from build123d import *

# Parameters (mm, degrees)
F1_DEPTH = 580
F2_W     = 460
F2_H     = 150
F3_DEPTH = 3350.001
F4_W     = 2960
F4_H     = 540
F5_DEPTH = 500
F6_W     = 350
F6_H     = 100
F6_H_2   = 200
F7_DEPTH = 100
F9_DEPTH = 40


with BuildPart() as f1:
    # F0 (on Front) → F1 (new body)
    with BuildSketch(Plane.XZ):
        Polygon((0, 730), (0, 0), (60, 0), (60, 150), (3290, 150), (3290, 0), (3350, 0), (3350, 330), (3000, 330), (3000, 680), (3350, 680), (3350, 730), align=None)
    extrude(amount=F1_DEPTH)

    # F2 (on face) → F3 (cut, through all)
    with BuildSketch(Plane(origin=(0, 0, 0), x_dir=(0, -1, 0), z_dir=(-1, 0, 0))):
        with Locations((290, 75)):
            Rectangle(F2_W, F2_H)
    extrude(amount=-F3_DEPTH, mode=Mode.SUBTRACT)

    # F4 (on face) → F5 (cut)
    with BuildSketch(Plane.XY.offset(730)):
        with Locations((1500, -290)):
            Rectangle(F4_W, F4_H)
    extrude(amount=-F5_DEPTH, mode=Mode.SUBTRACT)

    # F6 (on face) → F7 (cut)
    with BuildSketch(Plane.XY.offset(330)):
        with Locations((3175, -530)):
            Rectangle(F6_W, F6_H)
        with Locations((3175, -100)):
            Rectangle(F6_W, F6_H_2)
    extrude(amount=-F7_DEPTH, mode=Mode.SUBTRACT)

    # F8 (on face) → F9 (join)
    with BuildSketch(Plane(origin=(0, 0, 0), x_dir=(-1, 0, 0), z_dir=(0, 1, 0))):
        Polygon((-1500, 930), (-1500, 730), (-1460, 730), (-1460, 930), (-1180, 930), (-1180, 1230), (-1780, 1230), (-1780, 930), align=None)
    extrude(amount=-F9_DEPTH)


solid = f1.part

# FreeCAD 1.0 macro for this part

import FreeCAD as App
import Part
import Sketcher
Q = App.Units.Quantity


def add_polygon(sketch, points):
    """Adds a closed chain of lines whose ends are joined by coincident constraints."""
    first, n = sketch.GeometryCount, len(points)
    for a, b in zip(points, points[1:] + points[:1]):
        sketch.addGeometry(Part.LineSegment(App.Vector(*a, 0), App.Vector(*b, 0)), False)
    for i in range(n):
        sketch.addConstraint(Sketcher.Constraint("Coincident", first + i, 2, first + (i + 1) % n, 1))

doc = App.newDocument("Part")
body = doc.addObject("PartDesign::Body", "Body")

# Sketch on XZ plane
sketch1 = body.newObject("Sketcher::SketchObject", "Sketch")
sketch1.AttachmentSupport = (doc.getObject("XZ_Plane"), [""])
sketch1.MapMode = "FlatFace"
add_polygon(sketch1, [(0, 730), (0, 0), (60, 0), (60, 150), (3290, 150), (3290, 0), (3350, 0), (3350, 330), (3000, 330), (3000, 680), (3350, 680), (3350, 730)])  # lines 0-11
sketch1.addConstraint([
    Sketcher.Constraint("Vertical", 0),
    Sketcher.Constraint("Horizontal", 1),
    Sketcher.Constraint("Vertical", 2),
    Sketcher.Constraint("Horizontal", 3),
    Sketcher.Constraint("Vertical", 4),
    Sketcher.Constraint("Horizontal", 5),
    Sketcher.Constraint("Vertical", 6),
    Sketcher.Constraint("Horizontal", 7),
    Sketcher.Constraint("Vertical", 8),
    Sketcher.Constraint("Horizontal", 9),
    Sketcher.Constraint("Vertical", 10),
    Sketcher.Constraint("Horizontal", 11),
    Sketcher.Constraint("Coincident", 0, 2, -1, 1),
    Sketcher.Constraint("PointOnObject", 4, 2, -1),
    Sketcher.Constraint("Vertical", 6, 2, 9, 2),
    Sketcher.Constraint("Equal", 1, 5),
    Sketcher.Constraint("Equal", 9, 8),
    Sketcher.Constraint("DistanceX", 1, 1, 1, 2, Q("60 mm")),
    Sketcher.Constraint("DistanceX", 3, 1, 3, 2, Q("3230 mm")),
    Sketcher.Constraint("DistanceX", 7, 2, 7, 1, Q("350 mm")),
    Sketcher.Constraint("DistanceY", 0, 2, 0, 1, Q("730 mm")),
    Sketcher.Constraint("DistanceY", 2, 1, 2, 2, Q("150 mm")),
    Sketcher.Constraint("DistanceY", 6, 1, 6, 2, Q("330 mm")),
])
pad1 = body.newObject("PartDesign::Pad", "Pad")
pad1.Profile = sketch1
pad1.Length = 580

# Sketch on YZ plane
sketch2 = body.newObject("Sketcher::SketchObject", "Sketch001")
sketch2.AttachmentSupport = (doc.getObject("YZ_Plane"), [""])
sketch2.MapMode = "FlatFace"
add_polygon(sketch2, [(-60, 150), (-60, 0), (-520, 0), (-520, 150)])  # lines 0-3
sketch2.addConstraint([
    Sketcher.Constraint("Vertical", 0),
    Sketcher.Constraint("Horizontal", 1),
    Sketcher.Constraint("Vertical", 2),
    Sketcher.Constraint("Horizontal", 3),
    Sketcher.Constraint("PointOnObject", 0, 2, -1),
    Sketcher.Constraint("DistanceX", 1, 2, 1, 1, Q("460 mm")),
    Sketcher.Constraint("DistanceY", 0, 2, 0, 1, Q("150 mm")),
    Sketcher.Constraint("DistanceX", 0, 2, -1, 1, Q("60 mm")),
])
pocket1 = body.newObject("PartDesign::Pocket", "Pocket")
pocket1.Profile = sketch2
pocket1.Type = "ThroughAll"
pocket1.Reversed = True

# Sketch on XY plane
sketch3 = body.newObject("Sketcher::SketchObject", "Sketch002")
sketch3.AttachmentSupport = (doc.getObject("XY_Plane"), [""])
sketch3.MapMode = "FlatFace"
sketch3.AttachmentOffset = App.Placement(App.Vector(0, 0, 730), App.Rotation())
add_polygon(sketch3, [(20, -20), (20, -560), (2980, -560), (2980, -20)])  # lines 0-3
sketch3.addConstraint([
    Sketcher.Constraint("Vertical", 0),
    Sketcher.Constraint("Horizontal", 1),
    Sketcher.Constraint("Vertical", 2),
    Sketcher.Constraint("Horizontal", 3),
    Sketcher.Constraint("DistanceX", 1, 1, 1, 2, Q("2960 mm")),
    Sketcher.Constraint("DistanceY", 0, 2, 0, 1, Q("540 mm")),
    Sketcher.Constraint("DistanceX", -1, 1, 0, 2, Q("20 mm")),
    Sketcher.Constraint("DistanceY", 0, 2, -1, 1, Q("560 mm")),
])
pocket2 = body.newObject("PartDesign::Pocket", "Pocket001")
pocket2.Profile = sketch3
pocket2.Length = 500

# Sketch on XY plane
sketch4 = body.newObject("Sketcher::SketchObject", "Sketch003")
sketch4.AttachmentSupport = (doc.getObject("XY_Plane"), [""])
sketch4.MapMode = "FlatFace"
sketch4.AttachmentOffset = App.Placement(App.Vector(0, 0, 330), App.Rotation())
add_polygon(sketch4, [(3000, -480), (3000, -580), (3350, -580), (3350, -480)])  # lines 0-3
add_polygon(sketch4, [(3000, 0), (3000, -200), (3350, -200), (3350, 0)])  # lines 4-7
sketch4.addConstraint([
    Sketcher.Constraint("Vertical", 0),
    Sketcher.Constraint("Horizontal", 1),
    Sketcher.Constraint("Vertical", 2),
    Sketcher.Constraint("Horizontal", 3),
    Sketcher.Constraint("Vertical", 4),
    Sketcher.Constraint("Horizontal", 5),
    Sketcher.Constraint("Vertical", 6),
    Sketcher.Constraint("Horizontal", 7),
    Sketcher.Constraint("PointOnObject", 6, 2, -1),
    Sketcher.Constraint("Vertical", 3, 2, 4, 2),
    Sketcher.Constraint("Vertical", 2, 2, 5, 2),
    Sketcher.Constraint("DistanceX", 1, 1, 1, 2, Q("350 mm")),
    Sketcher.Constraint("DistanceY", 0, 2, 0, 1, Q("100 mm")),
    Sketcher.Constraint("DistanceY", 4, 2, 4, 1, Q("200 mm")),
    Sketcher.Constraint("DistanceX", -1, 1, 0, 2, Q("3000 mm")),
    Sketcher.Constraint("DistanceY", 0, 2, -1, 1, Q("580 mm")),
])
pocket3 = body.newObject("PartDesign::Pocket", "Pocket002")
pocket3.Profile = sketch4
pocket3.Length = 100

# Sketch on XZ plane
sketch5 = body.newObject("Sketcher::SketchObject", "Sketch004")
sketch5.AttachmentSupport = (doc.getObject("XZ_Plane"), [""])
sketch5.MapMode = "FlatFace"
add_polygon(sketch5, [(1500, 930), (1500, 730), (1460, 730), (1460, 930), (1180, 930), (1180, 1230), (1780, 1230), (1780, 930)])  # lines 0-7
sketch5.addConstraint([
    Sketcher.Constraint("Vertical", 0),
    Sketcher.Constraint("Horizontal", 1),
    Sketcher.Constraint("Vertical", 2),
    Sketcher.Constraint("Horizontal", 3),
    Sketcher.Constraint("Vertical", 4),
    Sketcher.Constraint("Horizontal", 5),
    Sketcher.Constraint("Vertical", 6),
    Sketcher.Constraint("Horizontal", 7),
    Sketcher.Constraint("Horizontal", 3, 2, 6, 2),
    Sketcher.Constraint("Equal", 3, 7),
    Sketcher.Constraint("DistanceX", 1, 2, 1, 1, Q("40 mm")),
    Sketcher.Constraint("DistanceX", 3, 2, 3, 1, Q("280 mm")),
    Sketcher.Constraint("DistanceY", 0, 2, 0, 1, Q("200 mm")),
    Sketcher.Constraint("DistanceY", 4, 1, 4, 2, Q("300 mm")),
    Sketcher.Constraint("DistanceX", -1, 1, 0, 2, Q("1500 mm")),
    Sketcher.Constraint("DistanceY", -1, 1, 0, 2, Q("730 mm")),
])
pad2 = body.newObject("PartDesign::Pad", "Pad001")
pad2.Profile = sketch5
pad2.Length = 40

doc.recompute()
